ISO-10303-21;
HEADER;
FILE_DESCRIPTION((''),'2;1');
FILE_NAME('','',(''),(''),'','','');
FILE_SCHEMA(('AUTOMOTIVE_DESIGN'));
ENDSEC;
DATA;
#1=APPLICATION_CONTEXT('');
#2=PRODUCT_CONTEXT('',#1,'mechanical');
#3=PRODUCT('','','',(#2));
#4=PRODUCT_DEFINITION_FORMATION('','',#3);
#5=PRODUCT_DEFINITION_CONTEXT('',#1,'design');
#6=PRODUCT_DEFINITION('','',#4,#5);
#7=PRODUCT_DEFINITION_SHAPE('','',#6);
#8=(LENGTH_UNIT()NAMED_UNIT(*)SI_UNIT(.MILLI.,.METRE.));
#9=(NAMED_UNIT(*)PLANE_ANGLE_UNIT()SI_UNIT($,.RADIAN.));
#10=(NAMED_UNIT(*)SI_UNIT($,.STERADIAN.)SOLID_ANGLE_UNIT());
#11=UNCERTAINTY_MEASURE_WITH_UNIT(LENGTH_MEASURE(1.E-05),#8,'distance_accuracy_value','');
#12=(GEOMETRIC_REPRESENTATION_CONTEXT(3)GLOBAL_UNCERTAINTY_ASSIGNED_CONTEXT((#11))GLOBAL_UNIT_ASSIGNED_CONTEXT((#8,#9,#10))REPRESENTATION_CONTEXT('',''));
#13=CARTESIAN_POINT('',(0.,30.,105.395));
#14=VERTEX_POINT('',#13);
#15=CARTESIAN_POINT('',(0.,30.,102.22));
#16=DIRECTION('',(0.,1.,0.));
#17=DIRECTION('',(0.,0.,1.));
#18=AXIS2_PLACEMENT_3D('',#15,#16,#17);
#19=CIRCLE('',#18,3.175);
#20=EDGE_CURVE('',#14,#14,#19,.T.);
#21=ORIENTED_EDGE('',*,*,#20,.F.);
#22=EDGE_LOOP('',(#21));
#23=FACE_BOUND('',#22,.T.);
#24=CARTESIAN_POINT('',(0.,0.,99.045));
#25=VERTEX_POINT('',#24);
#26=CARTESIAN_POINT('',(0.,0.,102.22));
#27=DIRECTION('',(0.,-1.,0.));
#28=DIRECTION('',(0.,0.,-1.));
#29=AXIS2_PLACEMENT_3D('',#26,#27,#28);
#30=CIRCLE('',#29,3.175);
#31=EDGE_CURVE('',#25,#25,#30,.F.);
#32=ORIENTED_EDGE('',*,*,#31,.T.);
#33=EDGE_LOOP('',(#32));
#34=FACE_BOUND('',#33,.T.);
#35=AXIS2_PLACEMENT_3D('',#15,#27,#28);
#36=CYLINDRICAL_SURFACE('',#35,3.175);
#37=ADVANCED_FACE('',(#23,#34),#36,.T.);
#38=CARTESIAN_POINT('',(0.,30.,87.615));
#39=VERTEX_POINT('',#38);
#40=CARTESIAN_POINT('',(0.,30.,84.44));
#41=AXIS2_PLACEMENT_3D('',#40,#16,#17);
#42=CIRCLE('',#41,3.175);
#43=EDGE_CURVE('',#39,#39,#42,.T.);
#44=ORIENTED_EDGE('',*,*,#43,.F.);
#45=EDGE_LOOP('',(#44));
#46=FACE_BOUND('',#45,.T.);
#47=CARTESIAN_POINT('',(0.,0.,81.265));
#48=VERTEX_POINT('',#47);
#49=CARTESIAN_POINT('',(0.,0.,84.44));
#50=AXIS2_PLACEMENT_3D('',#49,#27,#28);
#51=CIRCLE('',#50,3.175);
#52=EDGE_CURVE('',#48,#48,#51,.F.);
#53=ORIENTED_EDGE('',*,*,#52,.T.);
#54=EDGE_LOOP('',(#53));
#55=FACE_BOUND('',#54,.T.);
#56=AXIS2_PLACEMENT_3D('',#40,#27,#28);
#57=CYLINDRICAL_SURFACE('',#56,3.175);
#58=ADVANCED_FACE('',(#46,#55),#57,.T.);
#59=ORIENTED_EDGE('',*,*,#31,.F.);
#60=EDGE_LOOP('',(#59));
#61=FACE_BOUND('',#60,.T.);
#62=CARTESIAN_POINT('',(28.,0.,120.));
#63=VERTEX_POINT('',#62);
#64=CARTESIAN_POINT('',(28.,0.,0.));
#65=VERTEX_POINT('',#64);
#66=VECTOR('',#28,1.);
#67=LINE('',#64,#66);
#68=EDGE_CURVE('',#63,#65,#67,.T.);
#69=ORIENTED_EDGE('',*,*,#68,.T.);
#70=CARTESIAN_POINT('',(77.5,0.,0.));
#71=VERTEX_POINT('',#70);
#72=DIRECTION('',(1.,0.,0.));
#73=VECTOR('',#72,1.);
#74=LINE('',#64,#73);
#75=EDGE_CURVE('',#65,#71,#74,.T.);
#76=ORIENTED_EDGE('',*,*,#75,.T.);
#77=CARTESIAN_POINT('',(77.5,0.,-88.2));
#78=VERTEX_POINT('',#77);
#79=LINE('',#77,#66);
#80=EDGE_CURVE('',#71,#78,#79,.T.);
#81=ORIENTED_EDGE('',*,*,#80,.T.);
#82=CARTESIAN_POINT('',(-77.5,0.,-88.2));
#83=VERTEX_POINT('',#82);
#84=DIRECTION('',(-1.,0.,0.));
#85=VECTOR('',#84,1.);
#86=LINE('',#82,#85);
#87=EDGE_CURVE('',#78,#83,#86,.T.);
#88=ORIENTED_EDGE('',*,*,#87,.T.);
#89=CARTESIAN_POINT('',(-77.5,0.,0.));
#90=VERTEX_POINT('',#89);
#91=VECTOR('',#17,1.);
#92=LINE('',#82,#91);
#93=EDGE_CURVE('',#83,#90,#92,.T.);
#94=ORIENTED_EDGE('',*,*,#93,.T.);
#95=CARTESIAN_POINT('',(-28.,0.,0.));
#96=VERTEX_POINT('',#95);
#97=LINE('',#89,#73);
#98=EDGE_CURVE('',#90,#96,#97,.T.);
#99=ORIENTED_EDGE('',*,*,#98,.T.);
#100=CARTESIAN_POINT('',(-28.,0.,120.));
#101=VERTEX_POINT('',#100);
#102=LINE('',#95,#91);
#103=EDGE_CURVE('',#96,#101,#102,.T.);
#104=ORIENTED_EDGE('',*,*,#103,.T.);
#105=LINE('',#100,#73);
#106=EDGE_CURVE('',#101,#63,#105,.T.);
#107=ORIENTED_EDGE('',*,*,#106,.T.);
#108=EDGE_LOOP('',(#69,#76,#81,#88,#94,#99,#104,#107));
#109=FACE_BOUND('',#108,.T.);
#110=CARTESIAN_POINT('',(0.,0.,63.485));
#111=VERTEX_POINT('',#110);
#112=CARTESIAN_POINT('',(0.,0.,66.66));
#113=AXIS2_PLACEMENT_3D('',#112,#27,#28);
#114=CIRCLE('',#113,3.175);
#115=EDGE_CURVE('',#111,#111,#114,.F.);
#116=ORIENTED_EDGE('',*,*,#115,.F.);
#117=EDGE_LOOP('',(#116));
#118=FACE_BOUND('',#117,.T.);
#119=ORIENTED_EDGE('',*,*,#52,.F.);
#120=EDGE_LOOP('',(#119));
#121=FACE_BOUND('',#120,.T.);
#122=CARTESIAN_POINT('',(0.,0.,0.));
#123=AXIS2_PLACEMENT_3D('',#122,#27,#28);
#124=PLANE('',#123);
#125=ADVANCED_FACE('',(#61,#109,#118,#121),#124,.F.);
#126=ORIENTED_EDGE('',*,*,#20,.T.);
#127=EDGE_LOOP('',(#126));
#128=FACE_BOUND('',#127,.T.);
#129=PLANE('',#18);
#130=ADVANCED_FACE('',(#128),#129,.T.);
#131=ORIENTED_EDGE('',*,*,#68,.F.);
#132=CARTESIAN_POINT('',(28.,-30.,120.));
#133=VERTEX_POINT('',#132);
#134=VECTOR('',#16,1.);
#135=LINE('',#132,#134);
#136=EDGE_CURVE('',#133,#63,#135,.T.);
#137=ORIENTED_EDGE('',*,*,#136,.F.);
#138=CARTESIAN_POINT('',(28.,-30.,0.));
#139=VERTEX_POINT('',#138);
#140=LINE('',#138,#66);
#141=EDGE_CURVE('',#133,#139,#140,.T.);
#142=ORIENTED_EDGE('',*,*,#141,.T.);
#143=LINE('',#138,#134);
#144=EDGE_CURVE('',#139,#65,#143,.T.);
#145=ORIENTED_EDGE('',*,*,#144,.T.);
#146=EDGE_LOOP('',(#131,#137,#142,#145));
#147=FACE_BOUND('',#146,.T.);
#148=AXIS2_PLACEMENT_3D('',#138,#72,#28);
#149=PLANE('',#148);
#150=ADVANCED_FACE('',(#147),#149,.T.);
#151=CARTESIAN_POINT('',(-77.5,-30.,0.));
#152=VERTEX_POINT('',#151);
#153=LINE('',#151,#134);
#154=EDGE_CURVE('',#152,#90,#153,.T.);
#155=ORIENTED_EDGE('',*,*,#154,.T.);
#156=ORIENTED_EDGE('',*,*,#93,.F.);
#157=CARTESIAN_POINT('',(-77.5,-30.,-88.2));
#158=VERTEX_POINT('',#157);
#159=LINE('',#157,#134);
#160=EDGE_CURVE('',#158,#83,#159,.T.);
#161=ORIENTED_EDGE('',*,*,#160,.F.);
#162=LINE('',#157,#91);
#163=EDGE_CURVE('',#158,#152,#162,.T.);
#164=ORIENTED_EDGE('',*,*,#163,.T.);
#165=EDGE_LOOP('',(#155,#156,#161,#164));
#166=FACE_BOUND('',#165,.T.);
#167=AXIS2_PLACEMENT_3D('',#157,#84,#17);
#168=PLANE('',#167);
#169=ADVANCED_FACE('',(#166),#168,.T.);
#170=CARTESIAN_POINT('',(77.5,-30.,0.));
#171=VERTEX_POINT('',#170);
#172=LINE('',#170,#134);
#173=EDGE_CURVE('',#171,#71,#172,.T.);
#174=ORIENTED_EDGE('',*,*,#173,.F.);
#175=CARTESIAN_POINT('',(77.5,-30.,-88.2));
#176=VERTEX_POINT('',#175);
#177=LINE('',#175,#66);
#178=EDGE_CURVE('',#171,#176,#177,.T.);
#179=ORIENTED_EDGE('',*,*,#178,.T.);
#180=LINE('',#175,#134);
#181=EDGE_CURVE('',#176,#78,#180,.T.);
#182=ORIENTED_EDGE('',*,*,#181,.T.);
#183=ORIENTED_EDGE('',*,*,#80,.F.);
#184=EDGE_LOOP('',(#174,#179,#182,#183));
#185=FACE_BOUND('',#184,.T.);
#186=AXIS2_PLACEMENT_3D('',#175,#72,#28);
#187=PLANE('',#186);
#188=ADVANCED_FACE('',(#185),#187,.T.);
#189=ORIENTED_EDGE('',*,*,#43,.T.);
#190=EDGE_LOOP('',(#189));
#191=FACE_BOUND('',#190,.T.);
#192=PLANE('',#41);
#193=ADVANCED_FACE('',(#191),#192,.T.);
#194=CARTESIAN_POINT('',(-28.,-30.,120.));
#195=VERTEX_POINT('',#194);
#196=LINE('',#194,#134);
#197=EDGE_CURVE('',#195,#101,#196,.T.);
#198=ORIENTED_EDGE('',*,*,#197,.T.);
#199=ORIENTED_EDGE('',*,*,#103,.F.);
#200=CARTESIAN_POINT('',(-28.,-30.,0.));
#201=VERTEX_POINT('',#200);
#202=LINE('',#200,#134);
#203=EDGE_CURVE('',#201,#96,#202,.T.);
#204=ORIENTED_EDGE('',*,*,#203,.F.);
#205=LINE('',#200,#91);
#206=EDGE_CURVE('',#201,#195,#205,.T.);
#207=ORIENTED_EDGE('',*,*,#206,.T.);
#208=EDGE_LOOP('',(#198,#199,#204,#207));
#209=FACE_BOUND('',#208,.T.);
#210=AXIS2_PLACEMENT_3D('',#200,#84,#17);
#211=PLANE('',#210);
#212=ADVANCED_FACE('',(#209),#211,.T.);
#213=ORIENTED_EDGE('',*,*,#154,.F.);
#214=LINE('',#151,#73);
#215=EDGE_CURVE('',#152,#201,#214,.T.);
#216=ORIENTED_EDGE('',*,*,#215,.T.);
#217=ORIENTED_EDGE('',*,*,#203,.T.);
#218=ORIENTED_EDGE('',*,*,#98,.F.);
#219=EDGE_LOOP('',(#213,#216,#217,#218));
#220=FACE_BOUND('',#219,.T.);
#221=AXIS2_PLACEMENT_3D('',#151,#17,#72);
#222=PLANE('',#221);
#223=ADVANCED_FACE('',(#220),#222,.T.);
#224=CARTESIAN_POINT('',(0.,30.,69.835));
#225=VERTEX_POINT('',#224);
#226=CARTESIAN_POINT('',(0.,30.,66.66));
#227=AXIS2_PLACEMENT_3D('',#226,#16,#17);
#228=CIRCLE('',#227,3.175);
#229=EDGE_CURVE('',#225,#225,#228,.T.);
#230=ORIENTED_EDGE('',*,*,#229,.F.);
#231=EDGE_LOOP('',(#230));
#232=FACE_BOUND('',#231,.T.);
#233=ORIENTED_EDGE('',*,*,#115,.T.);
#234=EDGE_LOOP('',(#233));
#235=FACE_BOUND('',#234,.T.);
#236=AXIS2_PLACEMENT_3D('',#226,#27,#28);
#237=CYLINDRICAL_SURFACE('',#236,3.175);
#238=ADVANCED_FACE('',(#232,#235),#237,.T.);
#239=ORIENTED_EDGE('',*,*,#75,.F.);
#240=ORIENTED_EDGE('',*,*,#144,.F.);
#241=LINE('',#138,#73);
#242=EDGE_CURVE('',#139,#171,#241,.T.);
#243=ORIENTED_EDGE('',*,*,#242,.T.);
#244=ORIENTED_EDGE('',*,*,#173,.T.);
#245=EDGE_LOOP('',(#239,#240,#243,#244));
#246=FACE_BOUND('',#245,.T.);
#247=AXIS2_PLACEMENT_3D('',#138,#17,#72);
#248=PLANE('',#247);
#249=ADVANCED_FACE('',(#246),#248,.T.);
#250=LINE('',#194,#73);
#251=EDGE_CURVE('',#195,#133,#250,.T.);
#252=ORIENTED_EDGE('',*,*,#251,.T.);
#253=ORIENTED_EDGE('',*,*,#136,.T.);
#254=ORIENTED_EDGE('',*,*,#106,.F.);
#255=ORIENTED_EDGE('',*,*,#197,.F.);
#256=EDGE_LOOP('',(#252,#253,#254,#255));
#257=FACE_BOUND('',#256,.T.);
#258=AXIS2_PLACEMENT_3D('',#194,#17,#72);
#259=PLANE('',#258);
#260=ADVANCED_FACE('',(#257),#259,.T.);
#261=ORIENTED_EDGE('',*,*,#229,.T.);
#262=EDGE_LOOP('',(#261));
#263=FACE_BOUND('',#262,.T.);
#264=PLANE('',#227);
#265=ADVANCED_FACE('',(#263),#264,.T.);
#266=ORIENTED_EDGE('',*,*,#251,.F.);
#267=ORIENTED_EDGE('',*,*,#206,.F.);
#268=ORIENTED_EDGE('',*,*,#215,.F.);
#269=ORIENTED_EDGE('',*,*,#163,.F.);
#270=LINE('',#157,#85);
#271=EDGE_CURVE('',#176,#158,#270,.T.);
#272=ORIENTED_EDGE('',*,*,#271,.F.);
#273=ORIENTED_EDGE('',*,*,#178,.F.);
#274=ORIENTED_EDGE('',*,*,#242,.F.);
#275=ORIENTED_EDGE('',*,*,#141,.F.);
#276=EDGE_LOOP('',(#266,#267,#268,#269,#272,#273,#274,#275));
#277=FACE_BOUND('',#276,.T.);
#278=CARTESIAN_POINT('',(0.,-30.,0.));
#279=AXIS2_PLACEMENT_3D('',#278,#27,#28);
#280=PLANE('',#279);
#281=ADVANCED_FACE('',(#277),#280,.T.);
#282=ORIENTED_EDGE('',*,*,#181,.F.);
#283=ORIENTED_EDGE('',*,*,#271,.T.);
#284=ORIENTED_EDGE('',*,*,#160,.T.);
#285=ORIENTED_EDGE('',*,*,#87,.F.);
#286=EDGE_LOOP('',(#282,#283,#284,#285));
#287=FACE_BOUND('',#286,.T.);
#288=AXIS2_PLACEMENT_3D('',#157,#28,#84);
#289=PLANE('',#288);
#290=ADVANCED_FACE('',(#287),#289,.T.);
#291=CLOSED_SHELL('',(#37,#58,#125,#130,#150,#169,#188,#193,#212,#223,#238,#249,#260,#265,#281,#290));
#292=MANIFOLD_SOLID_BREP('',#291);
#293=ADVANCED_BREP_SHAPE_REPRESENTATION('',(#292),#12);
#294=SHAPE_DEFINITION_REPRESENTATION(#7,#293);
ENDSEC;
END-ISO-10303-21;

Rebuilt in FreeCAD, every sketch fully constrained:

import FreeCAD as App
import Part
import Sketcher
from FreeCAD import Vector


def add_polygon(sketch, points):
    """Adds a closed chain of lines whose ends are joined by coincident constraints."""
    first, n = sketch.GeometryCount, len(points)
    for a, b in zip(points, points[1:] + points[:1]):
        sketch.addGeometry(Part.LineSegment(App.Vector(*a, 0), App.Vector(*b, 0)), False)
    for i in range(n):
        sketch.addConstraint(Sketcher.Constraint("Coincident", first + i, 2, first + (i + 1) % n, 1))

doc = App.newDocument("Part")
params = doc.addObject("Spreadsheet::Sheet", "Params")
for row, (alias, value) in enumerate([
    ("sketch1_width", "155 mm"),
    ("sketch1_width2", "56 mm"),
    ("sketch1_height", "120 mm"),
    ("sketch1_height2", "88.2 mm"),
    ("pad1_length", "30 mm"),
    ("sketch2_diameter", "6.35 mm"),
    ("pad2_length", "30 mm"),
], start=1):
    params.set(f"A{row}", alias)
    params.set(f"B{row}", "=" + value)
    params.setAlias(f"B{row}", alias)

body = doc.addObject("PartDesign::Body", "Body")

sketch1 = body.newObject("Sketcher::SketchObject", "Sketch")
sketch1.AttachmentSupport = (doc.getObject("XZ_Plane"), [""])
sketch1.MapMode = "FlatFace"
add_polygon(sketch1, [(28, 0), (78, 0), (78, -88), (-78, -88), (-78, 0), (-28, 0), (-28, 120), (28, 120)])
sketch1.addConstraint(Sketcher.Constraint("Horizontal", 0))
sketch1.addConstraint(Sketcher.Constraint("Vertical", 1))
sketch1.addConstraint(Sketcher.Constraint("Horizontal", 2))
sketch1.addConstraint(Sketcher.Constraint("Vertical", 3))
sketch1.addConstraint(Sketcher.Constraint("Horizontal", 4))
sketch1.addConstraint(Sketcher.Constraint("Vertical", 5))
sketch1.addConstraint(Sketcher.Constraint("Horizontal", 6))
sketch1.addConstraint(Sketcher.Constraint("Vertical", 7))
sketch1.addConstraint(Sketcher.Constraint("Symmetric", 0, 2, 3, 2, -1, 1))
sketch1.addConstraint(Sketcher.Constraint("Symmetric", 4, 2, 7, 2, -2))
sketch1.addConstraint(Sketcher.Constraint("DistanceX", 2, 2, 2, 1, 155.0))
sketch1.addConstraint(Sketcher.Constraint("DistanceX", 6, 1, 6, 2, 56.0))
sketch1.addConstraint(Sketcher.Constraint("DistanceY", 5, 1, 5, 2, 120.0))
sketch1.addConstraint(Sketcher.Constraint("DistanceY", 1, 2, 1, 1, 88.2))
sketch1.setExpression("Constraints[18]", "Params.sketch1_width")
sketch1.setExpression("Constraints[19]", "Params.sketch1_width2")
sketch1.setExpression("Constraints[20]", "Params.sketch1_height")
sketch1.setExpression("Constraints[21]", "Params.sketch1_height2")
pad1 = body.newObject("PartDesign::Pad", "Pad")
pad1.Profile = sketch1
pad1.setExpression("Length", "Params.pad1_length")

sketch2 = body.newObject("Sketcher::SketchObject", "Sketch001")
sketch2.AttachmentSupport = (doc.getObject("XZ_Plane"), [""])
sketch2.MapMode = "FlatFace"
sketch2.addGeometry(Part.Circle(Vector(0, 84.4, 0), Vector(0, 0, 1), 3.2), False)
sketch2.addGeometry(Part.Circle(Vector(0, 66.7, 0), Vector(0, 0, 1), 3.2), False)
sketch2.addGeometry(Part.Circle(Vector(0, 102.2, 0), Vector(0, 0, 1), 3.2), False)
sketch2.addConstraint(Sketcher.Constraint("Equal", 0, 1))
sketch2.addConstraint(Sketcher.Constraint("Equal", 1, 2))
sketch2.addConstraint(Sketcher.Constraint("PointOnObject", 0, 3, -2))
sketch2.addConstraint(Sketcher.Constraint("PointOnObject", 1, 3, -2))
sketch2.addConstraint(Sketcher.Constraint("PointOnObject", 2, 3, -2))
sketch2.addConstraint(Sketcher.Constraint("Diameter", 0, 6.35))
sketch2.addConstraint(Sketcher.Constraint("DistanceY", -1, 1, 0, 3, 84.44))
sketch2.addConstraint(Sketcher.Constraint("DistanceY", -1, 1, 1, 3, 66.66))
sketch2.addConstraint(Sketcher.Constraint("DistanceY", -1, 1, 2, 3, 102.22))
sketch2.setExpression("Constraints[5]", "Params.sketch2_diameter")
pad2 = body.newObject("PartDesign::Pad", "Pad001")
pad2.Profile = sketch2
pad2.setExpression("Length", "Params.pad2_length")
pad2.Reversed = True

doc.recompute()
